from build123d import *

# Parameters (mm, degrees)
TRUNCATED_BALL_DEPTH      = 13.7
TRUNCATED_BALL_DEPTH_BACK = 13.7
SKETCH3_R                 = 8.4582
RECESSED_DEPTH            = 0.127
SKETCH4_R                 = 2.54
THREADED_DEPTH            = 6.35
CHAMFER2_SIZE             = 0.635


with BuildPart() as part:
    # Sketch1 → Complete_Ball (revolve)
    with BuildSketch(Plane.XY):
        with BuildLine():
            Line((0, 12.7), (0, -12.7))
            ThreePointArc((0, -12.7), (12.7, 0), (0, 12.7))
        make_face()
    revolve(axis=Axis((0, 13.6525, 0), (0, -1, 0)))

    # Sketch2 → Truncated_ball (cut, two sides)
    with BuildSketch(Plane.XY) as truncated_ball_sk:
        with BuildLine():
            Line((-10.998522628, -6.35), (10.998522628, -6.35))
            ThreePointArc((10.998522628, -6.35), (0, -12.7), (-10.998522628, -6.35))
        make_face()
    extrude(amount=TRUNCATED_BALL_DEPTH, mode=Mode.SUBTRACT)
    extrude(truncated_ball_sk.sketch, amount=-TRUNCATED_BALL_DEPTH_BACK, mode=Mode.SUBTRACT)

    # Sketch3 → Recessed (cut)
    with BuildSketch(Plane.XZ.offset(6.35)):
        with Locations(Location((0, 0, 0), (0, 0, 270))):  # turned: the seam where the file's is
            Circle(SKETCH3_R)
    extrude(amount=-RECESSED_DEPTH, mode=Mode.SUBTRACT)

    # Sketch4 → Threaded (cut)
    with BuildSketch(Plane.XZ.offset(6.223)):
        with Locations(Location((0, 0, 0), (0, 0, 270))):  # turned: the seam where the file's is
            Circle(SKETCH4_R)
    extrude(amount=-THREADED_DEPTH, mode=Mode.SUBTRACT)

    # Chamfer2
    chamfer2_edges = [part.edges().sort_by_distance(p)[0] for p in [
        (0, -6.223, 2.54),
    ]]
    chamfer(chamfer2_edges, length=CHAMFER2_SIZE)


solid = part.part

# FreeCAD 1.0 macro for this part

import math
import FreeCAD as App
import Part
import Sketcher

V = App.Vector
Q = App.Units.Quantity


def edges_at(feature, points):
    """Names of the edges that pass closest to the given points."""
    edges = feature.Shape.Edges
    near = lambda p: min(range(len(edges)), key=lambda i: edges[i].distToShape(Part.Vertex(*p))[0])
    return sorted({f"Edge{near(p) + 1}" for p in points})

doc = App.newDocument("Part")
body = doc.addObject("PartDesign::Body", "Body")

sketch1 = body.newObject("Sketcher::SketchObject", "Sketch")
sketch1.AttachmentSupport = (doc.getObject("XY_Plane"), [""])
sketch1.MapMode = "FlatFace"
sketch1.addGeometry([
    Part.LineSegment(V(0, 12.7, 0), V(0, -12.7, 0)),
    Part.ArcOfCircle(Part.Circle(V(0, 0, 0), V(0, 0, 1), 12.7), math.radians(-90), math.radians(90)),
], False)
sketch1.addConstraint([
    Sketcher.Constraint("Coincident", 0, 1, 1, 2),
    Sketcher.Constraint("Coincident", 1, 1, 0, 2),
    Sketcher.Constraint("Vertical", 0),
    Sketcher.Constraint("Coincident", 1, 3, -1, 1),
    Sketcher.Constraint("PointOnObject", 0, 1, -2),
    Sketcher.Constraint("Radius", 1, Q("0.5 in")),
])
revolution = body.newObject("PartDesign::Revolution", "Revolution")
revolution.Profile = sketch1
revolution.ReferenceAxis = (sketch1, ["V_Axis"])
revolution.Angle = 360

sketch2 = body.newObject("Sketcher::SketchObject", "Sketch001")
sketch2.AttachmentSupport = (doc.getObject("XY_Plane"), [""])
sketch2.MapMode = "FlatFace"
sketch2.addGeometry([
    Part.LineSegment(V(10.998523, -6.35, 0), V(-10.998523, -6.35, 0)),
    Part.ArcOfCircle(Part.Circle(V(0, 0, 0), V(0, 0, 1), 12.7), math.radians(-150), math.radians(-30)),
], False)
sketch2.addConstraint([
    Sketcher.Constraint("Coincident", 0, 1, 1, 2),
    Sketcher.Constraint("Coincident", 1, 1, 0, 2),
    Sketcher.Constraint("Horizontal", 0),
    Sketcher.Constraint("Coincident", 1, 3, -1, 1),
    Sketcher.Constraint("Radius", 1, Q("0.5 in")),
    Sketcher.Constraint("DistanceY", 0, 1, -1, 1, Q("0.25 in")),
])
pocket1 = body.newObject("PartDesign::Pocket", "Pocket")
pocket1.Profile = sketch2
pocket1.Type = "ThroughAll"
pocket1.Midplane = True

sketch3 = body.newObject("Sketcher::SketchObject", "Sketch002")
sketch3.AttachmentSupport = (doc.getObject("XZ_Plane"), [""])
sketch3.MapMode = "FlatFace"
sketch3.AttachmentOffset = App.Placement(V(0, 0, 0.25 * 25.4), App.Rotation())
sketch3.addGeometry(Part.Circle(V(0, 0, 0), V(0, 0, 1), 8.4582), False)
sketch3.addConstraint([
    Sketcher.Constraint("Coincident", 0, 3, -1, 1),
    Sketcher.Constraint("Diameter", 0, Q("0.666 in")),
])
pocket2 = body.newObject("PartDesign::Pocket", "Pocket001")
pocket2.Profile = sketch3
pocket2.Length = Q("0.005 in")

sketch4 = body.newObject("Sketcher::SketchObject", "Sketch003")
sketch4.AttachmentSupport = (doc.getObject("XZ_Plane"), [""])
sketch4.MapMode = "FlatFace"
sketch4.AttachmentOffset = App.Placement(V(0, 0, 0.245 * 25.4), App.Rotation())
sketch4.addGeometry(Part.Circle(V(0, 0, 0), V(0, 0, 1), 2.54), False)
sketch4.addConstraint([
    Sketcher.Constraint("Coincident", 0, 3, -1, 1),
    Sketcher.Constraint("Diameter", 0, Q("0.2 in")),
])
pocket3 = body.newObject("PartDesign::Pocket", "Pocket002")
pocket3.Profile = sketch4
pocket3.Length = Q("0.25 in")
doc.recompute()

chamfer = body.newObject("PartDesign::Chamfer", "Chamfer")
chamfer.Base = (pocket3, edges_at(pocket3, [(0, -6.223, 2.54)]))
chamfer.Size = Q("0.025 in")

doc.recompute()
